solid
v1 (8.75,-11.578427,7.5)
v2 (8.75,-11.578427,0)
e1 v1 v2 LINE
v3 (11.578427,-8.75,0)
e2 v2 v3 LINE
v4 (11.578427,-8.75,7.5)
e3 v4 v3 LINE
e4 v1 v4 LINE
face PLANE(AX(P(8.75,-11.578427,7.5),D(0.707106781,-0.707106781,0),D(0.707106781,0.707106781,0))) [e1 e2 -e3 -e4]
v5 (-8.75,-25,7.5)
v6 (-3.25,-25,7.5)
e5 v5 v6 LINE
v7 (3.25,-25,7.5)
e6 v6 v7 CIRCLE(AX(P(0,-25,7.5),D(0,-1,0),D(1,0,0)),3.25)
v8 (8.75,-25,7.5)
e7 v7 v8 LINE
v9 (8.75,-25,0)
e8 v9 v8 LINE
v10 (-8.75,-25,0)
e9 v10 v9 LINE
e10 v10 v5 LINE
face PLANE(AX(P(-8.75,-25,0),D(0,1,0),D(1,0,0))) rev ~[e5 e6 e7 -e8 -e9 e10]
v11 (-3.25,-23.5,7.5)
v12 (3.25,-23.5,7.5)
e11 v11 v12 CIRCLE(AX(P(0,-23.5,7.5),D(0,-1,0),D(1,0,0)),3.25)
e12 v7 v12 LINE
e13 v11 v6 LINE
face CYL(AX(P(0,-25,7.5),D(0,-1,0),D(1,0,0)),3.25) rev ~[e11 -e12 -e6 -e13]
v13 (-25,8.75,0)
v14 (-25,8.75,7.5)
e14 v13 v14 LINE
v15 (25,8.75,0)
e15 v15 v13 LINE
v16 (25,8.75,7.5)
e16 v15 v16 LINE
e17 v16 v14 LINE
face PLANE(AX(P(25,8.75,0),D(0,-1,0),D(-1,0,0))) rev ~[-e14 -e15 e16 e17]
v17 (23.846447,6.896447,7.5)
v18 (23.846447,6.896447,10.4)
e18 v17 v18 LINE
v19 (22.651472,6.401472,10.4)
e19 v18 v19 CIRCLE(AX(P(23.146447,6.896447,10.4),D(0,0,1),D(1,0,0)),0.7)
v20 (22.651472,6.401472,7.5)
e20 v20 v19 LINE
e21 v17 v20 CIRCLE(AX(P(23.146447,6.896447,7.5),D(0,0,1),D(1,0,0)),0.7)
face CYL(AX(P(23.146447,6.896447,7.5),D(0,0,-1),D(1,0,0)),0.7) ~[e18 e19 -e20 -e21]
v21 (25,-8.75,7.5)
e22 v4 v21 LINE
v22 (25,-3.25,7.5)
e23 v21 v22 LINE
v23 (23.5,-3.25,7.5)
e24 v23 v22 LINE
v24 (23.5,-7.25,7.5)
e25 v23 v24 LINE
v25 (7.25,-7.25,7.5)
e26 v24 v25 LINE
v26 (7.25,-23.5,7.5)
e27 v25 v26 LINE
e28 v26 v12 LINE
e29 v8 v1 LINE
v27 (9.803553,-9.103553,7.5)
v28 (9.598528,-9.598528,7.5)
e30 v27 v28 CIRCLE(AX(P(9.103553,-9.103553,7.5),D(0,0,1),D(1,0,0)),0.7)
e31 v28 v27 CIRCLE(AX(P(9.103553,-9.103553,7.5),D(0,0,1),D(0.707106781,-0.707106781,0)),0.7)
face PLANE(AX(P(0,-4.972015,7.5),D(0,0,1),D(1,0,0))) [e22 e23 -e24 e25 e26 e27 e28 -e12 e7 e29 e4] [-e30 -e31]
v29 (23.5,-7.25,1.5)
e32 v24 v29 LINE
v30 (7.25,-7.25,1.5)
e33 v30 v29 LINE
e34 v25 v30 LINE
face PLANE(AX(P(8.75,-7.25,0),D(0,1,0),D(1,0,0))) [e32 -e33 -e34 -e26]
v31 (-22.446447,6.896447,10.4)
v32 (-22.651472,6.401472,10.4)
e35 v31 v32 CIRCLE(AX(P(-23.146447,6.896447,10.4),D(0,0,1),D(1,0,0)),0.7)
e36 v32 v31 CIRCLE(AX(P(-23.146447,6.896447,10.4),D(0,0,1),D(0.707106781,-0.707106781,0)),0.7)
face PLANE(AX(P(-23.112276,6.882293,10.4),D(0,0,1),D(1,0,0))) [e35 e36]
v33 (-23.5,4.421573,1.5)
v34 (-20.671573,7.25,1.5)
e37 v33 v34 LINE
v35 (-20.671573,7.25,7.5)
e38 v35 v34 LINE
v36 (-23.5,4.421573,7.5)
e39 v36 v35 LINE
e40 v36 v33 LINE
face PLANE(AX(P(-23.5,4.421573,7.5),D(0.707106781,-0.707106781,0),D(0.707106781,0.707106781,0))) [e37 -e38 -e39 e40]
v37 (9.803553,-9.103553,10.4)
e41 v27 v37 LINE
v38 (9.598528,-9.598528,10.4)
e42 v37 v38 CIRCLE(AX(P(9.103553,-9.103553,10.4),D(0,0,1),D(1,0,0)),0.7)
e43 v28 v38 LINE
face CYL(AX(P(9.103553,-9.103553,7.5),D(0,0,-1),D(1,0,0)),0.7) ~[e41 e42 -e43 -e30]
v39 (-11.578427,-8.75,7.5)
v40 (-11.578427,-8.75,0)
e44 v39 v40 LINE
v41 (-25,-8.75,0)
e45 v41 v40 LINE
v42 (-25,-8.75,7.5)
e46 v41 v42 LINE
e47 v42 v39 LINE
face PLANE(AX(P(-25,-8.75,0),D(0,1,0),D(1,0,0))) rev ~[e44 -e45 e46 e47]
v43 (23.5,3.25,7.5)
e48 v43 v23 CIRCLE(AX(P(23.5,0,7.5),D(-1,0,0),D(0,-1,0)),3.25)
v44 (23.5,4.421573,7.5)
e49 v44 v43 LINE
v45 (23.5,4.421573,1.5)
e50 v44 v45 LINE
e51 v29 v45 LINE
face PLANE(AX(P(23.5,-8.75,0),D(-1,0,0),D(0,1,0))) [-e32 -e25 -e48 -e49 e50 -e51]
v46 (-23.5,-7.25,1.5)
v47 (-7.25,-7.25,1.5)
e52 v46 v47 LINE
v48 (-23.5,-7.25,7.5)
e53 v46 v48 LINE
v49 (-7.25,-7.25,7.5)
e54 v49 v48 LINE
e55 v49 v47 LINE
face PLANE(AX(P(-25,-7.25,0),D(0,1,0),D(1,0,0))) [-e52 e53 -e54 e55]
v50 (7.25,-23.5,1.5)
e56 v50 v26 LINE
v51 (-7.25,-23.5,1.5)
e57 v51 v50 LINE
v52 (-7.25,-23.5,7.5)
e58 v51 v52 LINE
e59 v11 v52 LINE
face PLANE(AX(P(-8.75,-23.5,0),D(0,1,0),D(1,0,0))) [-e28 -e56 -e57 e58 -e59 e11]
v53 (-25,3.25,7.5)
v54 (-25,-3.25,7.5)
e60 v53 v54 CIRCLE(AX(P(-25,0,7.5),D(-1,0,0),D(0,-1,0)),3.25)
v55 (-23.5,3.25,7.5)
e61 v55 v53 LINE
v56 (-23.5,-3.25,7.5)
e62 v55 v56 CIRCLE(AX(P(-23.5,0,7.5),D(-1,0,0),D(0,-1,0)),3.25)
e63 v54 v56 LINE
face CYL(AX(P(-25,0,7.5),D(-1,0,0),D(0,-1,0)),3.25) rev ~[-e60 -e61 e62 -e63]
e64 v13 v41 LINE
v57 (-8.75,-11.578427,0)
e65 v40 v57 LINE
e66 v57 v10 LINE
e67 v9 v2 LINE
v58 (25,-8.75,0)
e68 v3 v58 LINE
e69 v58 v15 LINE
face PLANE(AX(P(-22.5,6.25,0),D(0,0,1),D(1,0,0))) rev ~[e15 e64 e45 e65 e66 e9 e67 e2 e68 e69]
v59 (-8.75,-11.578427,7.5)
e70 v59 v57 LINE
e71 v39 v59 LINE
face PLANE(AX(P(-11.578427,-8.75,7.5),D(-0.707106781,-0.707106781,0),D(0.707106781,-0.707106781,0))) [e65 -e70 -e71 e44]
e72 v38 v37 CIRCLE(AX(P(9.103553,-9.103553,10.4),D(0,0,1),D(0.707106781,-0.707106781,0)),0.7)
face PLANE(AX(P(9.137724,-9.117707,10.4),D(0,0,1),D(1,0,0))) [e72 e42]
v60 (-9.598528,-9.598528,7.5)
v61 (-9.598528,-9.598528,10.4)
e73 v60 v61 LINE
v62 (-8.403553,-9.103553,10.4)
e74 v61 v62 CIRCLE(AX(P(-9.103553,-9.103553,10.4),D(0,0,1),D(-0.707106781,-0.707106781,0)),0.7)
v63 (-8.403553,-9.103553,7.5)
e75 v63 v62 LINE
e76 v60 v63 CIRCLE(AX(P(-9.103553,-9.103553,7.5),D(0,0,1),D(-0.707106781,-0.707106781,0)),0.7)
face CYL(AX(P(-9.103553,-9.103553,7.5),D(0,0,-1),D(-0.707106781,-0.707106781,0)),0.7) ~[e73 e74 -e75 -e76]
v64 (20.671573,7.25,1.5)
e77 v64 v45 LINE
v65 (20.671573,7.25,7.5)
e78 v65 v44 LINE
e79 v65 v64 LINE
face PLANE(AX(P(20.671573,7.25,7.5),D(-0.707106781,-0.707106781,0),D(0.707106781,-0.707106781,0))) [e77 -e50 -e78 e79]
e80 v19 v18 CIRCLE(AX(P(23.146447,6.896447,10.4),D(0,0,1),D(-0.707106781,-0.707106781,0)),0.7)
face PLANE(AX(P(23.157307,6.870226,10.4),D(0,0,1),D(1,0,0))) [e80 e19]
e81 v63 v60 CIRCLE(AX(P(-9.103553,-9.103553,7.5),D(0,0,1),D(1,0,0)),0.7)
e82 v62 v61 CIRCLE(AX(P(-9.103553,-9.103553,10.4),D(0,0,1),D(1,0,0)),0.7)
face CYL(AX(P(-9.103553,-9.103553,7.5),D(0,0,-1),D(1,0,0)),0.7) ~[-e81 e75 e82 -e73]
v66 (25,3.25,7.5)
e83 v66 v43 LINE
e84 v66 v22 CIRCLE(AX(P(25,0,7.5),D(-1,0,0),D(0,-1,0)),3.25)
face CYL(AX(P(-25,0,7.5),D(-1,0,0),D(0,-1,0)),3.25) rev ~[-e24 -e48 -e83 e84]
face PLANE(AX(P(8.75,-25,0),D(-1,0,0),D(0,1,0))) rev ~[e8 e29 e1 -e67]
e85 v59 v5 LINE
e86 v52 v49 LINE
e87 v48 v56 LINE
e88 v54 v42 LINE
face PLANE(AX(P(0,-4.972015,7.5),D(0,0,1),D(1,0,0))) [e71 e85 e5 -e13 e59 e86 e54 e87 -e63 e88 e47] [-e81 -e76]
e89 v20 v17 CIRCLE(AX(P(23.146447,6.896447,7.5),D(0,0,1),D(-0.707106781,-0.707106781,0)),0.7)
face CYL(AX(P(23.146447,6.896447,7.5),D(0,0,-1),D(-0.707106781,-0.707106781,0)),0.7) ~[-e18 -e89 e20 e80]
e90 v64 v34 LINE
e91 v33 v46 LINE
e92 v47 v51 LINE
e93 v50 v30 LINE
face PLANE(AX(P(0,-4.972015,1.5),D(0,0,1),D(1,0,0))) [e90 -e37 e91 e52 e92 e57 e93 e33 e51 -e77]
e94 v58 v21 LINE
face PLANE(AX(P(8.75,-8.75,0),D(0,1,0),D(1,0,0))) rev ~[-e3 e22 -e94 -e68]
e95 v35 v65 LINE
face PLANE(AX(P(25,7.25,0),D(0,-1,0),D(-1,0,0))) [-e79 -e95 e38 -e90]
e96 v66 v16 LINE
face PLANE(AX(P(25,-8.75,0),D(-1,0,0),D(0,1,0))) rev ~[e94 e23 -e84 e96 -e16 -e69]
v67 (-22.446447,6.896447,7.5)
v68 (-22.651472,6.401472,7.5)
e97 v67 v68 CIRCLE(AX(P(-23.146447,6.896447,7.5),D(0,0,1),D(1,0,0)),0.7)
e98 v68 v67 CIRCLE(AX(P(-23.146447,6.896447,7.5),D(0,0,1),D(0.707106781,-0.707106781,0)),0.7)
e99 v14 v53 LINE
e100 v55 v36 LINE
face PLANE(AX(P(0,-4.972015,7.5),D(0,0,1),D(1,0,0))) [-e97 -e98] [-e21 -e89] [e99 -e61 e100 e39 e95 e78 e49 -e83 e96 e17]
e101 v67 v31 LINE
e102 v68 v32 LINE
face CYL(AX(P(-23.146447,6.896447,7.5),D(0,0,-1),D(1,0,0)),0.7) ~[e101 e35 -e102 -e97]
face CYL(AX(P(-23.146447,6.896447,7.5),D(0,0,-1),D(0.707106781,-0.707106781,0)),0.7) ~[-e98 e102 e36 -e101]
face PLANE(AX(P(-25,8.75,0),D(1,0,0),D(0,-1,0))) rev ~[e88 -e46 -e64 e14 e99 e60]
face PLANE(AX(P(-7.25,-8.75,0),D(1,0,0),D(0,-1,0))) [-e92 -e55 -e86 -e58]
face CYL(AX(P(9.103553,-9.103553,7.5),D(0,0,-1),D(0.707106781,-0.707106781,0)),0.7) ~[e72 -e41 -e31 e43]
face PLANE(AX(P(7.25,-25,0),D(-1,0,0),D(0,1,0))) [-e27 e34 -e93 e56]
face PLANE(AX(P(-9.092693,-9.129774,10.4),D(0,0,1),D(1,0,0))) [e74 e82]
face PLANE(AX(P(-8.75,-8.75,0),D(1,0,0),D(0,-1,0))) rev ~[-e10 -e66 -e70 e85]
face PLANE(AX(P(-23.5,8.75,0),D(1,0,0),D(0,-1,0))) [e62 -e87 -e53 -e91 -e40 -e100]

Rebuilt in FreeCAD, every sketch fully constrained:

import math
import FreeCAD as App
import Part
import Sketcher

V = App.Vector
Q = App.Units.Quantity


def faces_at(feature, points):
    """Names of the faces that lie closest to the given points."""
    faces = feature.Shape.Faces
    near = lambda p: min(range(len(faces)), key=lambda i: faces[i].distToShape(Part.Vertex(*p))[0])
    return sorted({f"Face{near(p) + 1}" for p in points})


def add_polygon(sketch, points):
    """Adds a closed chain of lines whose ends are joined by coincident constraints."""
    first, n = sketch.GeometryCount, len(points)
    for a, b in zip(points, points[1:] + points[:1]):
        sketch.addGeometry(Part.LineSegment(App.Vector(*a, 0), App.Vector(*b, 0)), False)
    for i in range(n):
        sketch.addConstraint(Sketcher.Constraint("Coincident", first + i, 2, first + (i + 1) % n, 1))

doc = App.newDocument("Part")
body = doc.addObject("PartDesign::Body", "Body")

# Sketch on XY plane
sketch1 = doc.addObject("Sketcher::SketchObject", "Sketch")
body.addObject(sketch1)
sketch1.AttachmentSupport = (doc.XY_Plane, [""])
sketch1.MapMode = "FlatFace"
add_polygon(sketch1, [(25, -9), (25, 9), (-25, 9), (-25, -9), (-9, -9), (-9, -25), (9, -25), (9, -9)])  # lines 0-7
sketch1.addConstraint([
    Sketcher.Constraint("Vertical", 0),
    Sketcher.Constraint("Horizontal", 1),
    Sketcher.Constraint("Vertical", 2),
    Sketcher.Constraint("Horizontal", 3),
    Sketcher.Constraint("Vertical", 4),
    Sketcher.Constraint("Horizontal", 5),
    Sketcher.Constraint("Vertical", 6),
    Sketcher.Constraint("Horizontal", 7),
    Sketcher.Constraint("Symmetric", 0, 2, 2, 2, -1, 1),
    Sketcher.Constraint("Symmetric", 3, 2, 6, 2, -2),
    Sketcher.Constraint("Equal", 5, 0),
    Sketcher.Constraint("Equal", 7, 4),
    Sketcher.Constraint("DistanceX", 1, 2, 1, 1, Q("50 mm")),
    Sketcher.Constraint("DistanceX", 5, 1, 5, 2, Q("17.5 mm")),
])
pad1 = doc.addObject("PartDesign::Pad", "Pad")
body.addObject(pad1)
pad1.Profile = sketch1
pad1.Length = 7.5
doc.recompute()

thickness = doc.addObject("PartDesign::Thickness", "Thickness")
body.addObject(thickness)
thickness.Base = (pad1, faces_at(pad1, [(0, -8.125, 7.5)]))
thickness.Value = 1.5
thickness.Reversed = True
thickness.Join = "Intersection"

# Sketch on XY plane
sketch2 = doc.addObject("Sketcher::SketchObject", "Sketch001")
body.addObject(sketch2)
sketch2.AttachmentSupport = (doc.XY_Plane, [""])
sketch2.MapMode = "FlatFace"
sketch2.AttachmentOffset = App.Placement(V(0, 0, 7.5), App.Rotation())
add_polygon(sketch2, [(-23.5, 7.2), (-23.5, 4.4), (-20.7, 7.2)])  # lines 0-2
add_polygon(sketch2, [(-8.8, -8.8), (-11.6, -8.8), (-8.8, -11.6)])  # lines 3-5
add_polygon(sketch2, [(23.5, 7.2), (20.7, 7.2), (23.5, 4.4)])  # lines 6-8
add_polygon(sketch2, [(8.8, -11.6), (11.6, -8.8), (8.8, -8.8)])  # lines 9-11
sketch2.addConstraint([
    Sketcher.Constraint("Vertical", 0),
    Sketcher.Constraint("Horizontal", 2),
    Sketcher.Constraint("Horizontal", 3),
    Sketcher.Constraint("Vertical", 5),
    Sketcher.Constraint("Horizontal", 6),
    Sketcher.Constraint("Vertical", 8),
    Sketcher.Constraint("Horizontal", 10),
    Sketcher.Constraint("Vertical", 11),
    Sketcher.Constraint("Symmetric", 1, 2, 6, 2, -2),
    Sketcher.Constraint("Symmetric", 0, 2, 7, 2, -2),
    Sketcher.Constraint("Symmetric", 3, 2, 9, 2, -2),
    Sketcher.Constraint("Symmetric", 4, 2, 11, 2, -2),
    Sketcher.Constraint("Perpendicular", 1, 4),
    Sketcher.Constraint("Parallel", 4, 7),
    Sketcher.Constraint("Equal", 2, 3),
    Sketcher.Constraint("Distance", 1, Q("4 mm")),
    Sketcher.Constraint("DistanceY", 3, 2, 1, 2, Q("16 mm")),
    Sketcher.Constraint("DistanceX", 0, 2, -1, 1, Q("23.5 mm")),
    Sketcher.Constraint("DistanceX", 5, 2, 10, 2, Q("17.5 mm")),
    Sketcher.Constraint("DistanceY", -1, 1, 1, 2, Q("7.25 mm")),
])
pad2 = doc.addObject("PartDesign::Pad", "Pad001")
body.addObject(pad2)
pad2.Profile = sketch2
pad2.Type = "UpToLast"
pad2.Reversed = True

# Sketch on XY plane
sketch3 = doc.addObject("Sketcher::SketchObject", "Sketch002")
body.addObject(sketch3)
sketch3.AttachmentSupport = (doc.XY_Plane, [""])
sketch3.MapMode = "FlatFace"
sketch3.AttachmentOffset = App.Placement(V(0, 0, 7.5), App.Rotation())
sketch3.addGeometry([
    Part.ArcOfCircle(Part.Circle(V(-9.1, -9.1, 0), V(0, 0, 1), 0.7), math.radians(-135), math.radians(0)),  # 0
    Part.ArcOfCircle(Part.Circle(V(-9.1, -9.1, 0), V(0, 0, 1), 0.7), math.radians(0), math.radians(225)),  # 1
    Part.ArcOfCircle(Part.Circle(V(-23.1, 6.9, 0), V(0, 0, 1), 0.7), math.radians(-45), math.radians(0)),  # 2
    Part.ArcOfCircle(Part.Circle(V(-23.1, 6.9, 0), V(0, 0, 1), 0.7), math.radians(0), math.radians(315)),  # 3
    Part.ArcOfCircle(Part.Circle(V(9.1, -9.1, 0), V(0, 0, 1), 0.7), math.radians(-45), math.radians(0)),  # 4
    Part.ArcOfCircle(Part.Circle(V(9.1, -9.1, 0), V(0, 0, 1), 0.7), math.radians(0), math.radians(315)),  # 5
    Part.ArcOfCircle(Part.Circle(V(23.1, 6.9, 0), V(0, 0, 1), 0.7), math.radians(-135), math.radians(0)),  # 6
    Part.ArcOfCircle(Part.Circle(V(23.1, 6.9, 0), V(0, 0, 1), 0.7), math.radians(0), math.radians(225)),  # 7
], False)
sketch3.addConstraint([
    Sketcher.Constraint("Tangent", 0, 1, 1, 2),
    Sketcher.Constraint("Coincident", 1, 1, 0, 2),
    Sketcher.Constraint("Tangent", 2, 1, 3, 2),
    Sketcher.Constraint("Coincident", 3, 1, 2, 2),
    Sketcher.Constraint("Tangent", 4, 1, 5, 2),
    Sketcher.Constraint("Coincident", 5, 1, 4, 2),
    Sketcher.Constraint("Tangent", 6, 1, 7, 2),
    Sketcher.Constraint("Coincident", 7, 1, 6, 2),
    Sketcher.Constraint("Equal", 1, 2),
    Sketcher.Constraint("Equal", 3, 4),
    Sketcher.Constraint("Equal", 5, 6),
    Sketcher.Constraint("Symmetric", 0, 3, 4, 3, -2),
    Sketcher.Constraint("Symmetric", 2, 3, 6, 3, -2),
    Sketcher.Constraint("Horizontal", 5, 3, 1, 1),
    Sketcher.Constraint("Horizontal", 7, 3, 3, 1),
    Sketcher.Constraint("Horizontal", 0, 1, 4, 1),
    Sketcher.Constraint("Horizontal", 1, 1, 5, 1),
    Sketcher.Constraint("Horizontal", 2, 1, 6, 1),
    Sketcher.Constraint("Horizontal", 3, 1, 7, 1),
    Sketcher.Constraint("Radius", 0, Q("0.7 mm")),
    Sketcher.Constraint("DistanceY", 0, 3, 2, 3, Q("16 mm")),
    Sketcher.Constraint("DistanceY", 0, 1, 2, 1, Q("16 mm")),
    Sketcher.Constraint("DistanceX", 2, 3, 4, 3, Q("32.25 mm")),
    Sketcher.Constraint("DistanceX", 0, 1, -1, 1, Q("9.598528 mm")),
    Sketcher.Constraint("DistanceY", 0, 1, -1, 1, Q("9.598528 mm")),
    Sketcher.Constraint("DistanceX", 0, 1, 4, 3, Q("18.702082 mm")),
])
pad3 = doc.addObject("PartDesign::Pad", "Pad002")
body.addObject(pad3)
pad3.Profile = sketch3
pad3.Length = 2.9

# Sketch on XZ plane
sketch4 = doc.addObject("Sketcher::SketchObject", "Sketch003")
body.addObject(sketch4)
sketch4.AttachmentSupport = (doc.XZ_Plane, [""])
sketch4.MapMode = "FlatFace"
sketch4.AttachmentOffset = App.Placement(V(0, 0, 25), App.Rotation())
sketch4.addGeometry(Part.Circle(V(0, 7.5, 0), V(0, 0, 1), 3.2), False)
sketch4.addConstraint([
    Sketcher.Constraint("PointOnObject", 0, 3, -2),
    Sketcher.Constraint("Diameter", 0, Q("6.5 mm")),
    Sketcher.Constraint("DistanceY", -1, 1, 0, 3, Q("7.5 mm")),
])
pocket1 = doc.addObject("PartDesign::Pocket", "Pocket")
body.addObject(pocket1)
pocket1.Profile = sketch4
pocket1.Length = 32.25

# Sketch on YZ plane
sketch5 = doc.addObject("Sketcher::SketchObject", "Sketch004")
body.addObject(sketch5)
sketch5.AttachmentSupport = (doc.YZ_Plane, [""])
sketch5.MapMode = "FlatFace"
sketch5.AttachmentOffset = App.Placement(V(0, 0, -25), App.Rotation())
sketch5.addGeometry(Part.Circle(V(0, 7.5, 0), V(0, 0, 1), 3.2), False)
sketch5.addConstraint([
    Sketcher.Constraint("PointOnObject", 0, 3, -2),
    Sketcher.Constraint("Diameter", 0, Q("6.5 mm")),
    Sketcher.Constraint("DistanceY", -1, 1, 0, 3, Q("7.5 mm")),
])
pocket2 = doc.addObject("PartDesign::Pocket", "Pocket001")
body.addObject(pocket2)
pocket2.Profile = sketch5
pocket2.Type = "ThroughAll"
pocket2.Reversed = True

doc.recompute()
